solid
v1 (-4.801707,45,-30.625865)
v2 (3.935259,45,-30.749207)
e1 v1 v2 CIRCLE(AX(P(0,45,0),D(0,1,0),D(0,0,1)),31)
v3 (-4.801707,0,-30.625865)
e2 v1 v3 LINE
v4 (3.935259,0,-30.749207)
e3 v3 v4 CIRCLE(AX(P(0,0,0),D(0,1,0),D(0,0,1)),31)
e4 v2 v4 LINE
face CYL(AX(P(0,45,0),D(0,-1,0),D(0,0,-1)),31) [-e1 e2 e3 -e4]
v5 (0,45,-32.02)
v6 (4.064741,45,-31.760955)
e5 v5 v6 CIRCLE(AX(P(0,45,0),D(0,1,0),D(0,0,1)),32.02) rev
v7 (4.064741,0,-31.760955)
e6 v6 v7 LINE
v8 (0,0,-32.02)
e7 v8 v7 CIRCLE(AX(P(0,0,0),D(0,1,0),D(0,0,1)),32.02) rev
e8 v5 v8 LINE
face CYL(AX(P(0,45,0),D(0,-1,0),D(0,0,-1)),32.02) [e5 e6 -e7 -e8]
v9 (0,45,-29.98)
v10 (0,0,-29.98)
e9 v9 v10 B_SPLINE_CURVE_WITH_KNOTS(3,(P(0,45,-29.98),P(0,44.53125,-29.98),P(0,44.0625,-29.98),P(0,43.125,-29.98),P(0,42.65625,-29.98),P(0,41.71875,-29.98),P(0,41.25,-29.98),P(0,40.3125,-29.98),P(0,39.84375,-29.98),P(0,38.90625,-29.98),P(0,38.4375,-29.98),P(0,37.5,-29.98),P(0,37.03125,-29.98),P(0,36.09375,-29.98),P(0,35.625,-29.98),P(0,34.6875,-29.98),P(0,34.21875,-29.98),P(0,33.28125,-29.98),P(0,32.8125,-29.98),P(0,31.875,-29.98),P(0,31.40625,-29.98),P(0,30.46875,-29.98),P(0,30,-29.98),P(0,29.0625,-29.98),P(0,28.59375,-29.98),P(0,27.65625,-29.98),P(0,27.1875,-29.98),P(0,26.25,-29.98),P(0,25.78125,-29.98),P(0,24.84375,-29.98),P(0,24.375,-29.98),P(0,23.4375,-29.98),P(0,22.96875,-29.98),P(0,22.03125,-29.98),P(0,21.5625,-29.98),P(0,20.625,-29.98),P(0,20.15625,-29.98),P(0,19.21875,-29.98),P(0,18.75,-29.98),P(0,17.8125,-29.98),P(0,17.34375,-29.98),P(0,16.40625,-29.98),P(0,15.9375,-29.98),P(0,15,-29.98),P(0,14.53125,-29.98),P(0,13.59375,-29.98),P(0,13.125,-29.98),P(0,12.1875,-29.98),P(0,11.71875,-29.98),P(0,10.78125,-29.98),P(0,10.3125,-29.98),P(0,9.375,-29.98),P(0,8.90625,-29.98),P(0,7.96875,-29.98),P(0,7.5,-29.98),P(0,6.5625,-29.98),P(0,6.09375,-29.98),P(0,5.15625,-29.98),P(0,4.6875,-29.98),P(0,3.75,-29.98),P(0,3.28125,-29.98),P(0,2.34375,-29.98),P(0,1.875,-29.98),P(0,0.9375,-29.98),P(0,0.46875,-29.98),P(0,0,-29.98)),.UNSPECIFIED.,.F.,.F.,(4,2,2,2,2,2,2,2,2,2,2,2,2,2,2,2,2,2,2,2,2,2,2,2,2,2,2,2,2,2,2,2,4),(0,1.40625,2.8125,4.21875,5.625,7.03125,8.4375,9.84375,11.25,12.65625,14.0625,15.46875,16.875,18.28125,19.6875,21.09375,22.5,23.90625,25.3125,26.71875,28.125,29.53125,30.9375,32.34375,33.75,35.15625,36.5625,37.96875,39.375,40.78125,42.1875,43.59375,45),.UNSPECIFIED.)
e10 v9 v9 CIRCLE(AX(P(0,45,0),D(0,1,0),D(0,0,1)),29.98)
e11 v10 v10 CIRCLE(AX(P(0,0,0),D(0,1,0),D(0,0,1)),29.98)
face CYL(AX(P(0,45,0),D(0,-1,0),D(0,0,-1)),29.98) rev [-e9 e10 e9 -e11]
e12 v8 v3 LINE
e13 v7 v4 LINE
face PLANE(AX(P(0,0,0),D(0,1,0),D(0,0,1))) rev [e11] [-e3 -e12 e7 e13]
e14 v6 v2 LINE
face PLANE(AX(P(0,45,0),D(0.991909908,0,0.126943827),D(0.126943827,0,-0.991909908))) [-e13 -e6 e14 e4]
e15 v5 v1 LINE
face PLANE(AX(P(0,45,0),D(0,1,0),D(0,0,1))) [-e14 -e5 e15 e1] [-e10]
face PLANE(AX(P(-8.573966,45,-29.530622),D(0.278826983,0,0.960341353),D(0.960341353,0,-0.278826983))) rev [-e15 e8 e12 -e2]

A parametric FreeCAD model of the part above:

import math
import FreeCAD as App
import Part
import Sketcher
from FreeCAD import Vector

doc = App.newDocument("Part")
body = doc.addObject("PartDesign::Body", "Body")

sketch1 = body.newObject("Sketcher::SketchObject", "Sketch")
sketch1.AttachmentSupport = (doc.getObject("XZ_Plane"), [""])
sketch1.MapMode = "FlatFace"
sketch1.addGeometry(Part.LineSegment(Vector(3.935259, -30.749207, 0), Vector(4.064741, -31.760955, 0)), False)
sketch1.addGeometry(Part.ArcOfCircle(Part.Circle(Vector(0, 0, 0), Vector(0, 0, 1), 32.02), math.radians(-90), math.radians(-82.706977)), False)
sketch1.addGeometry(Part.LineSegment(Vector(0, -32.02, 0), Vector(-4.801707, -30.625865, 0)), False)
sketch1.addGeometry(Part.ArcOfCircle(Part.Circle(Vector(0, 0, 0), Vector(0, 0, 1), 31), math.radians(-82.706977), math.radians(261.089365)), False)
sketch1.addGeometry(Part.Circle(Vector(0, 0, 0), Vector(0, 0, 1), 29.98), False)
sketch1.addConstraint(Sketcher.Constraint("Coincident", 0, 2, 1, 2))
sketch1.addConstraint(Sketcher.Constraint("Coincident", 1, 1, 2, 1))
sketch1.addConstraint(Sketcher.Constraint("Coincident", 2, 2, 3, 2))
sketch1.addConstraint(Sketcher.Constraint("Coincident", 3, 1, 0, 1))
sketch1.addConstraint(Sketcher.Constraint("Coincident", 1, 3, -1, 1))
sketch1.addConstraint(Sketcher.Constraint("Coincident", 3, 3, -1, 1))
sketch1.addConstraint(Sketcher.Constraint("Coincident", 4, 3, -1, 1))
sketch1.addConstraint(Sketcher.Constraint("PointOnObject", 1, 1, -2))
sketch1.addConstraint(Sketcher.Constraint("Radius", 3, 31.0))
sketch1.addConstraint(Sketcher.Constraint("Diameter", 4, 59.96))
sketch1.addConstraint(Sketcher.Constraint("Radius", 1, 32.02))
sketch1.addConstraint(Sketcher.Constraint("Distance", 2, 5.0))
sketch1.addConstraint(Sketcher.Constraint("DistanceX", -1, 1, 0, 2, 4.064741))
sketch1.addConstraint(Sketcher.Constraint("DistanceX", -1, 1, 3, 1, 3.935259))
pad1 = body.newObject("PartDesign::Pad", "Pad")
pad1.Profile = sketch1
pad1.Length = 45
pad1.Reversed = True

doc.recompute()
